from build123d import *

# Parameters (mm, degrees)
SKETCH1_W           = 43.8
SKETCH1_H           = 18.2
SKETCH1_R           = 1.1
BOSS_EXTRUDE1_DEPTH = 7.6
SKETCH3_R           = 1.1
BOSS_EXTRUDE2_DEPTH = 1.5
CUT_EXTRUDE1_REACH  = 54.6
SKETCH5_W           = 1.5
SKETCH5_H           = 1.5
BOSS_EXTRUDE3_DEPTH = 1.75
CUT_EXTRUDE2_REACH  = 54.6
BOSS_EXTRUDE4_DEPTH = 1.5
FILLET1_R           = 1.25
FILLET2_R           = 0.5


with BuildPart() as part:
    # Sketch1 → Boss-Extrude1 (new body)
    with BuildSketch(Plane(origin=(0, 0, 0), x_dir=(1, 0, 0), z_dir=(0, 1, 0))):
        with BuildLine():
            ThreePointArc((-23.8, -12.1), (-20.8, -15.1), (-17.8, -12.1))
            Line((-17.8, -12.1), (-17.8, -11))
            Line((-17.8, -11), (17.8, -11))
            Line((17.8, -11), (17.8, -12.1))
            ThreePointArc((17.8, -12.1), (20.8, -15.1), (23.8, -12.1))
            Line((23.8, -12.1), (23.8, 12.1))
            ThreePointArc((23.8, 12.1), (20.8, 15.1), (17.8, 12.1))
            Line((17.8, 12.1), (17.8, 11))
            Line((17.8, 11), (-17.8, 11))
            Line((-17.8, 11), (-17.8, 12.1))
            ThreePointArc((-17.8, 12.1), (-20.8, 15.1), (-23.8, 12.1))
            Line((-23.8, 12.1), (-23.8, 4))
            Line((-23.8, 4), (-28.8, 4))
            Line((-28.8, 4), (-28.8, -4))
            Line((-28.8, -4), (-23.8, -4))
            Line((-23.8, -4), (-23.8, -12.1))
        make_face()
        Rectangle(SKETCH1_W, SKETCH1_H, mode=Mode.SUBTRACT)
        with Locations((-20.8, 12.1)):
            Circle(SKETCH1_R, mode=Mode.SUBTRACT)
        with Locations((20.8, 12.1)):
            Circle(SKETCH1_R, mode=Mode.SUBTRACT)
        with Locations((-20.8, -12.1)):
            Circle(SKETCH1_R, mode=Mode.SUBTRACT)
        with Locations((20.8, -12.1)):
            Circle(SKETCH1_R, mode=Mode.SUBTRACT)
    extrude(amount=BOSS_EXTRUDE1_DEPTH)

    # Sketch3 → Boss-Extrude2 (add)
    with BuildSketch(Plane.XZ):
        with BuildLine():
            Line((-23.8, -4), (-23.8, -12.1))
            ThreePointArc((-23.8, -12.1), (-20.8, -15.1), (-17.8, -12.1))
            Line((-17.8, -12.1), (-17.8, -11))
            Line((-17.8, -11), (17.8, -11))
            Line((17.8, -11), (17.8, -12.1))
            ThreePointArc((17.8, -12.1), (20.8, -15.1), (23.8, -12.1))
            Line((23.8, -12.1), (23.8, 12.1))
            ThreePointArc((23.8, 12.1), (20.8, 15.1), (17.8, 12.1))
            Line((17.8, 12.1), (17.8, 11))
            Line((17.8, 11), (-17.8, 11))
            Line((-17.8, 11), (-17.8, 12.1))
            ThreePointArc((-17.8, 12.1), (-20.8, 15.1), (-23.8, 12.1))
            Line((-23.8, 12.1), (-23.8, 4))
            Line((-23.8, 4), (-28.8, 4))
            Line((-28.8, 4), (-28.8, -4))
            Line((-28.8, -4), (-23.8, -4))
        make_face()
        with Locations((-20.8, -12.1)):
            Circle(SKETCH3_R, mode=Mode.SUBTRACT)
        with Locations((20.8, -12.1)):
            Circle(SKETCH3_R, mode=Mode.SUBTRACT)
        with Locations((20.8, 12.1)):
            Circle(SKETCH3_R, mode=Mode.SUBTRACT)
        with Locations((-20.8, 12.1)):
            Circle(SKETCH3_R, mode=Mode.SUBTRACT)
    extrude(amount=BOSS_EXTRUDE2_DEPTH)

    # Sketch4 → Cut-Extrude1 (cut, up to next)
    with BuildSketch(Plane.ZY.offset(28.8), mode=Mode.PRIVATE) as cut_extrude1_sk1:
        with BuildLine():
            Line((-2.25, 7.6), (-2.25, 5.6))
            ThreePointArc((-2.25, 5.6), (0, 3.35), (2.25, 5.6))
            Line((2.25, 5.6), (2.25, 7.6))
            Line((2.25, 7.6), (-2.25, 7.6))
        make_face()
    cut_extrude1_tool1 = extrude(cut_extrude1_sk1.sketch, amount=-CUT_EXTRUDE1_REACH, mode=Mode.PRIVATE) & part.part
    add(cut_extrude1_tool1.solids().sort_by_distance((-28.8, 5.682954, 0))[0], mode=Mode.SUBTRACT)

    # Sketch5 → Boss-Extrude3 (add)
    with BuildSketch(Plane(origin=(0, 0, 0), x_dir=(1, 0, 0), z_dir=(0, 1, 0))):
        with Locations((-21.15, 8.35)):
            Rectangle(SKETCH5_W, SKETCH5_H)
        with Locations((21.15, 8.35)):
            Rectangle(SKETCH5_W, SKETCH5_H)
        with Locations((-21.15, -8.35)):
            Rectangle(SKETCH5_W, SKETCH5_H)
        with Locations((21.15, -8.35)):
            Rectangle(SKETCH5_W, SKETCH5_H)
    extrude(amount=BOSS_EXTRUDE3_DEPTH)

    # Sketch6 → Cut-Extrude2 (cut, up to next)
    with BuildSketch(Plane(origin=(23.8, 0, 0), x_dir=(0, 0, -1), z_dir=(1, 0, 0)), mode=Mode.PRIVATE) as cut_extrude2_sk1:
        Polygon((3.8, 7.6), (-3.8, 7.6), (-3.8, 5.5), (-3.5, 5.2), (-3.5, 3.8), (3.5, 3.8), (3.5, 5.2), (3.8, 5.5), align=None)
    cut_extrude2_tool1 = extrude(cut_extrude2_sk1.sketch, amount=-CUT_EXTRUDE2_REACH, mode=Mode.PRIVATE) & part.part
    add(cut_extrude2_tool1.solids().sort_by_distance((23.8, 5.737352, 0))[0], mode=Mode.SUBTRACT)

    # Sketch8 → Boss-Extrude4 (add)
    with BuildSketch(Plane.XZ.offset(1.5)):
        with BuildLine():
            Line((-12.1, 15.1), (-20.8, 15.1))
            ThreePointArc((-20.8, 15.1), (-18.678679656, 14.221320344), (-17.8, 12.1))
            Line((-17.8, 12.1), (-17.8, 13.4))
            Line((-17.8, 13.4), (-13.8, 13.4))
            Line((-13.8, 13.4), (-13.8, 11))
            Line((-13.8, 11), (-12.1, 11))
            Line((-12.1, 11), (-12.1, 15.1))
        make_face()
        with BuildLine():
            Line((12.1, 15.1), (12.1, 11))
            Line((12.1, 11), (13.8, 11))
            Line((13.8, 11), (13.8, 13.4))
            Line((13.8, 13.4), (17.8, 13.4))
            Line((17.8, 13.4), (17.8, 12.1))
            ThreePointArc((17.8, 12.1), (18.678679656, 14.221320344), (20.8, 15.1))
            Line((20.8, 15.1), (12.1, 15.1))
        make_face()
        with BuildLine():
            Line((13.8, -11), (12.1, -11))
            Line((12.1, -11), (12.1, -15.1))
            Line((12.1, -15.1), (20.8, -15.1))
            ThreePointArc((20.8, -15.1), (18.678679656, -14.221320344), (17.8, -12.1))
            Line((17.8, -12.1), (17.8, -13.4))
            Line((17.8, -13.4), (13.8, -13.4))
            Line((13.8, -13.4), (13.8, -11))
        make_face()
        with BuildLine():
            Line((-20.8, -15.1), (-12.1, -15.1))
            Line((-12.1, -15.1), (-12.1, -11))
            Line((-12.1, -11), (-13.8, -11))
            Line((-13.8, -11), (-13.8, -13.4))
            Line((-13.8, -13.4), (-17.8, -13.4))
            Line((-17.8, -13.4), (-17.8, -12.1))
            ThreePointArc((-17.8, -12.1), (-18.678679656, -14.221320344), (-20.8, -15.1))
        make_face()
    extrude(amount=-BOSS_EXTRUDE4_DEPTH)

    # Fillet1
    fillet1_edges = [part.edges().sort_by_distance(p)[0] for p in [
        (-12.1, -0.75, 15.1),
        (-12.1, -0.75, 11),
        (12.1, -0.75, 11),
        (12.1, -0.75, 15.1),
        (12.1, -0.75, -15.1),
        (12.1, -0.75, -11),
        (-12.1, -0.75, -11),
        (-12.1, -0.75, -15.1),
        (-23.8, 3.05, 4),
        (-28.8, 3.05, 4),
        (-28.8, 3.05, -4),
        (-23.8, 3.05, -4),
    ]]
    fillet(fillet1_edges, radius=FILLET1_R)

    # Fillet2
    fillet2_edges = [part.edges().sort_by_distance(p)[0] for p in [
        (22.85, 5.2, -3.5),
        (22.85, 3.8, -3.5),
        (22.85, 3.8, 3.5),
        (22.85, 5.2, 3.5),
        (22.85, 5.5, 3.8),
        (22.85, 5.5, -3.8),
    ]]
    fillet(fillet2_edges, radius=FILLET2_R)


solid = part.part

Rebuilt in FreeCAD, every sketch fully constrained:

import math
import FreeCAD as App
import Part
import Sketcher
from FreeCAD import Vector


def edges_at(feature, points):
    """Names of the edges that pass closest to the given points."""
    edges = feature.Shape.Edges
    near = lambda p: min(range(len(edges)), key=lambda i: edges[i].distToShape(Part.Vertex(*p))[0])
    return sorted({f"Edge{near(p) + 1}" for p in points})


def add_polygon(sketch, points):
    """Adds a closed chain of lines whose ends are joined by coincident constraints."""
    first, n = sketch.GeometryCount, len(points)
    for a, b in zip(points, points[1:] + points[:1]):
        sketch.addGeometry(Part.LineSegment(App.Vector(*a, 0), App.Vector(*b, 0)), False)
    for i in range(n):
        sketch.addConstraint(Sketcher.Constraint("Coincident", first + i, 2, first + (i + 1) % n, 1))

doc = App.newDocument("Part")
body = doc.addObject("PartDesign::Body", "Body")

# Sketch on XZ plane
sketch1 = doc.addObject("Sketcher::SketchObject", "Sketch")
body.addObject(sketch1)
sketch1.AttachmentSupport = (doc.XZ_Plane, [""])
sketch1.MapMode = "FlatFace"
sketch1.addGeometry(Part.ArcOfCircle(Part.Circle(Vector(-20.8, 12.1, 0), Vector(0, 0, 1), 3), math.radians(0), math.radians(180)), False)  # 0
sketch1.addGeometry(Part.LineSegment(Vector(-17.8, 12.1, 0), Vector(-17.8, 11, 0)), False)  # 1
sketch1.addGeometry(Part.LineSegment(Vector(-17.8, 11, 0), Vector(17.8, 11, 0)), False)  # 2
sketch1.addGeometry(Part.LineSegment(Vector(17.8, 11, 0), Vector(17.8, 12.1, 0)), False)  # 3
sketch1.addGeometry(Part.ArcOfCircle(Part.Circle(Vector(20.8, 12.1, 0), Vector(0, 0, 1), 3), math.radians(0), math.radians(180)), False)  # 4
sketch1.addGeometry(Part.LineSegment(Vector(23.8, 12.1, 0), Vector(23.8, -12.1, 0)), False)  # 5
sketch1.addGeometry(Part.ArcOfCircle(Part.Circle(Vector(20.8, -12.1, 0), Vector(0, 0, 1), 3), math.radians(180), math.radians(360)), False)  # 6
sketch1.addGeometry(Part.LineSegment(Vector(17.8, -12.1, 0), Vector(17.8, -11, 0)), False)  # 7
sketch1.addGeometry(Part.LineSegment(Vector(17.8, -11, 0), Vector(-17.8, -11, 0)), False)  # 8
sketch1.addGeometry(Part.LineSegment(Vector(-17.8, -11, 0), Vector(-17.8, -12.1, 0)), False)  # 9
sketch1.addGeometry(Part.ArcOfCircle(Part.Circle(Vector(-20.8, -12.1, 0), Vector(0, 0, 1), 3), math.radians(180), math.radians(360)), False)  # 10
sketch1.addGeometry(Part.LineSegment(Vector(-23.8, -12.1, 0), Vector(-23.8, -4, 0)), False)  # 11
sketch1.addGeometry(Part.LineSegment(Vector(-23.8, -4, 0), Vector(-28.8, -4, 0)), False)  # 12
sketch1.addGeometry(Part.LineSegment(Vector(-28.8, -4, 0), Vector(-28.8, 4, 0)), False)  # 13
sketch1.addGeometry(Part.LineSegment(Vector(-28.8, 4, 0), Vector(-23.8, 4, 0)), False)  # 14
sketch1.addGeometry(Part.LineSegment(Vector(-23.8, 4, 0), Vector(-23.8, 12.1, 0)), False)  # 15
sketch1.addGeometry(Part.Circle(Vector(-20.8, 12.1, 0), Vector(0, 0, 1), 1.1), False)  # 16
sketch1.addGeometry(Part.Circle(Vector(20.8, 12.1, 0), Vector(0, 0, 1), 1.1), False)  # 17
add_polygon(sketch1, [(21.9, 9.1), (-21.9, 9.1), (-21.9, -9.1), (21.9, -9.1)])  # lines 18-21
sketch1.addGeometry(Part.Circle(Vector(-20.8, -12.1, 0), Vector(0, 0, 1), 1.1), False)  # 22
sketch1.addGeometry(Part.Circle(Vector(20.8, -12.1, 0), Vector(0, 0, 1), 1.1), False)  # 23
sketch1.addConstraint([
    Sketcher.Constraint("Tangent", 0, 1, 1, 1),
    Sketcher.Constraint("Coincident", 1, 2, 2, 1),
    Sketcher.Constraint("Coincident", 2, 2, 3, 1),
    Sketcher.Constraint("Tangent", 3, 2, 4, 2),
    Sketcher.Constraint("Tangent", 4, 1, 5, 1),
    Sketcher.Constraint("Tangent", 5, 2, 6, 2),
    Sketcher.Constraint("Tangent", 6, 1, 7, 1),
    Sketcher.Constraint("Coincident", 7, 2, 8, 1),
    Sketcher.Constraint("Coincident", 8, 2, 9, 1),
    Sketcher.Constraint("Tangent", 9, 2, 10, 2),
    Sketcher.Constraint("Tangent", 10, 1, 11, 1),
    Sketcher.Constraint("Coincident", 11, 2, 12, 1),
    Sketcher.Constraint("Coincident", 12, 2, 13, 1),
    Sketcher.Constraint("Coincident", 13, 2, 14, 1),
    Sketcher.Constraint("Coincident", 14, 2, 15, 1),
    Sketcher.Constraint("Tangent", 15, 2, 0, 2),
    Sketcher.Constraint("Vertical", 1),
    Sketcher.Constraint("Horizontal", 2),
    Sketcher.Constraint("Vertical", 3),
    Sketcher.Constraint("Vertical", 5),
    Sketcher.Constraint("Vertical", 7),
    Sketcher.Constraint("Horizontal", 8),
    Sketcher.Constraint("Vertical", 9),
    Sketcher.Constraint("Vertical", 11),
    Sketcher.Constraint("Horizontal", 12),
    Sketcher.Constraint("Vertical", 13),
    Sketcher.Constraint("Horizontal", 14),
    Sketcher.Constraint("Vertical", 15),
    Sketcher.Constraint("Horizontal", 18),
    Sketcher.Constraint("Vertical", 19),
    Sketcher.Constraint("Horizontal", 20),
    Sketcher.Constraint("Vertical", 21),
    Sketcher.Constraint("Coincident", 16, 3, 0, 3),
    Sketcher.Constraint("Coincident", 17, 3, 4, 3),
    Sketcher.Constraint("Coincident", 22, 3, 10, 3),
    Sketcher.Constraint("Coincident", 23, 3, 6, 3),
    Sketcher.Constraint("Equal", 0, 4),
    Sketcher.Constraint("Equal", 4, 6),
    Sketcher.Constraint("Equal", 6, 10),
    Sketcher.Constraint("Equal", 16, 17),
    Sketcher.Constraint("Equal", 17, 22),
    Sketcher.Constraint("Equal", 22, 23),
    Sketcher.Constraint("Symmetric", 0, 3, 6, 3, -1, 1),
    Sketcher.Constraint("Symmetric", 4, 3, 10, 3, -1, 1),
    Sketcher.Constraint("Symmetric", 18, 2, 20, 2, -1, 1),
    Sketcher.Constraint("Horizontal", 0, 3, 4, 3),
    Sketcher.Constraint("Equal", 3, 7),
    Sketcher.Constraint("Equal", 11, 15),
    Sketcher.Constraint("Radius", 0, 3.0),
    Sketcher.Constraint("Diameter", 16, 2.2),
    Sketcher.Constraint("DistanceX", 12, 2, 12, 1, 5.0),
    Sketcher.Constraint("DistanceY", 13, 1, 13, 2, 8.0),
    Sketcher.Constraint("DistanceX", 2, 1, 2, 2, 35.6),
    Sketcher.Constraint("DistanceX", 18, 2, 18, 1, 43.8),
    Sketcher.Constraint("DistanceY", 1, 2, 1, 1, 1.1),
    Sketcher.Constraint("DistanceY", 5, 2, 5, 1, 24.2),
    Sketcher.Constraint("DistanceY", 19, 2, 19, 1, 18.2),
])
pad1 = doc.addObject("PartDesign::Pad", "Pad")
body.addObject(pad1)
pad1.Profile = sketch1
pad1.Length = 7.6
pad1.Reversed = True

# Sketch on XZ plane
sketch2 = doc.addObject("Sketcher::SketchObject", "Sketch001")
body.addObject(sketch2)
sketch2.AttachmentSupport = (doc.XZ_Plane, [""])
sketch2.MapMode = "FlatFace"
sketch2.addGeometry([
    Part.LineSegment(Vector(-23.8, -4, 0), Vector(-23.8, -12.1, 0)),  # 0
    Part.ArcOfCircle(Part.Circle(Vector(-20.8, -12.1, 0), Vector(0, 0, 1), 3), math.radians(180), math.radians(360)),  # 1
    Part.LineSegment(Vector(-17.8, -12.1, 0), Vector(-17.8, -11, 0)),  # 2
    Part.LineSegment(Vector(-17.8, -11, 0), Vector(17.8, -11, 0)),  # 3
    Part.LineSegment(Vector(17.8, -11, 0), Vector(17.8, -12.1, 0)),  # 4
    Part.ArcOfCircle(Part.Circle(Vector(20.8, -12.1, 0), Vector(0, 0, 1), 3), math.radians(180), math.radians(360)),  # 5
    Part.LineSegment(Vector(23.8, -12.1, 0), Vector(23.8, 12.1, 0)),  # 6
    Part.ArcOfCircle(Part.Circle(Vector(20.8, 12.1, 0), Vector(0, 0, 1), 3), math.radians(0), math.radians(180)),  # 7
    Part.LineSegment(Vector(17.8, 12.1, 0), Vector(17.8, 11, 0)),  # 8
    Part.LineSegment(Vector(17.8, 11, 0), Vector(-17.8, 11, 0)),  # 9
    Part.LineSegment(Vector(-17.8, 11, 0), Vector(-17.8, 12.1, 0)),  # 10
    Part.ArcOfCircle(Part.Circle(Vector(-20.8, 12.1, 0), Vector(0, 0, 1), 3), math.radians(0), math.radians(180)),  # 11
    Part.LineSegment(Vector(-23.8, 12.1, 0), Vector(-23.8, 4, 0)),  # 12
    Part.LineSegment(Vector(-23.8, 4, 0), Vector(-28.8, 4, 0)),  # 13
    Part.LineSegment(Vector(-28.8, 4, 0), Vector(-28.8, -4, 0)),  # 14
    Part.LineSegment(Vector(-28.8, -4, 0), Vector(-23.8, -4, 0)),  # 15
    Part.Circle(Vector(-20.8, -12.1, 0), Vector(0, 0, 1), 1.1),  # 16
    Part.Circle(Vector(20.8, -12.1, 0), Vector(0, 0, 1), 1.1),  # 17
    Part.Circle(Vector(-20.8, 12.1, 0), Vector(0, 0, 1), 1.1),  # 18
    Part.Circle(Vector(20.8, 12.1, 0), Vector(0, 0, 1), 1.1),  # 19
], False)
sketch2.addConstraint([
    Sketcher.Constraint("Tangent", 0, 2, 1, 1),
    Sketcher.Constraint("Tangent", 1, 2, 2, 1),
    Sketcher.Constraint("Coincident", 2, 2, 3, 1),
    Sketcher.Constraint("Coincident", 3, 2, 4, 1),
    Sketcher.Constraint("Tangent", 4, 2, 5, 1),
    Sketcher.Constraint("Tangent", 5, 2, 6, 1),
    Sketcher.Constraint("Tangent", 6, 2, 7, 1),
    Sketcher.Constraint("Tangent", 7, 2, 8, 1),
    Sketcher.Constraint("Coincident", 8, 2, 9, 1),
    Sketcher.Constraint("Coincident", 9, 2, 10, 1),
    Sketcher.Constraint("Tangent", 10, 2, 11, 1),
    Sketcher.Constraint("Tangent", 11, 2, 12, 1),
    Sketcher.Constraint("Coincident", 12, 2, 13, 1),
    Sketcher.Constraint("Coincident", 13, 2, 14, 1),
    Sketcher.Constraint("Coincident", 14, 2, 15, 1),
    Sketcher.Constraint("Coincident", 15, 2, 0, 1),
    Sketcher.Constraint("Vertical", 0),
    Sketcher.Constraint("Vertical", 2),
    Sketcher.Constraint("Horizontal", 3),
    Sketcher.Constraint("Vertical", 4),
    Sketcher.Constraint("Vertical", 6),
    Sketcher.Constraint("Vertical", 8),
    Sketcher.Constraint("Horizontal", 9),
    Sketcher.Constraint("Vertical", 10),
    Sketcher.Constraint("Vertical", 12),
    Sketcher.Constraint("Horizontal", 13),
    Sketcher.Constraint("Vertical", 14),
    Sketcher.Constraint("Horizontal", 15),
    Sketcher.Constraint("Coincident", 16, 3, 1, 3),
    Sketcher.Constraint("Coincident", 17, 3, 5, 3),
    Sketcher.Constraint("Coincident", 18, 3, 11, 3),
    Sketcher.Constraint("Coincident", 19, 3, 7, 3),
    Sketcher.Constraint("Equal", 1, 5),
    Sketcher.Constraint("Equal", 5, 7),
    Sketcher.Constraint("Equal", 7, 11),
    Sketcher.Constraint("Equal", 16, 17),
    Sketcher.Constraint("Equal", 17, 18),
    Sketcher.Constraint("Equal", 18, 19),
    Sketcher.Constraint("Symmetric", 1, 3, 7, 3, -1, 1),
    Sketcher.Constraint("Symmetric", 5, 3, 11, 3, -1, 1),
    Sketcher.Constraint("Horizontal", 1, 3, 5, 3),
    Sketcher.Constraint("Equal", 4, 8),
    Sketcher.Constraint("Equal", 0, 12),
    Sketcher.Constraint("Radius", 1, 3.0),
    Sketcher.Constraint("Diameter", 16, 2.2),
    Sketcher.Constraint("DistanceX", 13, 2, 13, 1, 5.0),
    Sketcher.Constraint("DistanceY", 14, 2, 14, 1, 8.0),
    Sketcher.Constraint("DistanceX", 3, 1, 3, 2, 35.6),
    Sketcher.Constraint("DistanceY", 0, 2, 0, 1, 8.1),
    Sketcher.Constraint("DistanceY", 2, 1, 2, 2, 1.1),
])
pad2 = doc.addObject("PartDesign::Pad", "Pad001")
body.addObject(pad2)
pad2.Profile = sketch2
pad2.Length = 1.5

# Sketch on YZ plane
sketch3 = doc.addObject("Sketcher::SketchObject", "Sketch002")
body.addObject(sketch3)
sketch3.AttachmentSupport = (doc.YZ_Plane, [""])
sketch3.MapMode = "FlatFace"
sketch3.AttachmentOffset = App.Placement(Vector(0, 0, -28.8), App.Rotation())
sketch3.addGeometry([
    Part.LineSegment(Vector(7.6, -2.2, 0), Vector(5.6, -2.2, 0)),
    Part.ArcOfCircle(Part.Circle(Vector(5.6, 0, 0), Vector(0, 0, 1), 2.2), math.radians(90), math.radians(270)),
    Part.LineSegment(Vector(5.6, 2.2, 0), Vector(7.6, 2.2, 0)),
    Part.LineSegment(Vector(7.6, 2.2, 0), Vector(7.6, -2.2, 0)),
], False)
sketch3.addConstraint([
    Sketcher.Constraint("Tangent", 0, 2, 1, 2),
    Sketcher.Constraint("Tangent", 1, 1, 2, 1),
    Sketcher.Constraint("Coincident", 2, 2, 3, 1),
    Sketcher.Constraint("Coincident", 3, 2, 0, 1),
    Sketcher.Constraint("Horizontal", 0),
    Sketcher.Constraint("Horizontal", 2),
    Sketcher.Constraint("Vertical", 3),
    Sketcher.Constraint("PointOnObject", 1, 3, -1),
    Sketcher.Constraint("DistanceX", 0, 2, 0, 1, 2.0),
    Sketcher.Constraint("Radius", 1, 2.25),
    Sketcher.Constraint("DistanceX", -1, 1, 1, 3, 5.6),
])
pocket1 = doc.addObject("PartDesign::Pocket", "Pocket")
body.addObject(pocket1)
pocket1.Profile = sketch3
pocket1.Type = "UpToFirst"
pocket1.Reversed = True

# Sketch on XZ plane
sketch4 = doc.addObject("Sketcher::SketchObject", "Sketch003")
body.addObject(sketch4)
sketch4.AttachmentSupport = (doc.XZ_Plane, [""])
sketch4.MapMode = "FlatFace"
add_polygon(sketch4, [(-21.9, -9.1), (-21.9, -7.6), (-20.4, -7.6), (-20.4, -9.1)])  # lines 0-3
add_polygon(sketch4, [(20.4, -9.1), (20.4, -7.6), (21.9, -7.6), (21.9, -9.1)])  # lines 4-7
add_polygon(sketch4, [(-21.9, 7.6), (-21.9, 9.1), (-20.4, 9.1), (-20.4, 7.6)])  # lines 8-11
add_polygon(sketch4, [(20.4, 7.6), (20.4, 9.1), (21.9, 9.1), (21.9, 7.6)])  # lines 12-15
sketch4.addConstraint([
    Sketcher.Constraint("Vertical", 0),
    Sketcher.Constraint("Horizontal", 1),
    Sketcher.Constraint("Vertical", 2),
    Sketcher.Constraint("Horizontal", 3),
    Sketcher.Constraint("Vertical", 4),
    Sketcher.Constraint("Horizontal", 5),
    Sketcher.Constraint("Vertical", 6),
    Sketcher.Constraint("Horizontal", 7),
    Sketcher.Constraint("Vertical", 8),
    Sketcher.Constraint("Horizontal", 9),
    Sketcher.Constraint("Vertical", 10),
    Sketcher.Constraint("Horizontal", 11),
    Sketcher.Constraint("Vertical", 12),
    Sketcher.Constraint("Horizontal", 13),
    Sketcher.Constraint("Vertical", 14),
    Sketcher.Constraint("Horizontal", 15),
    Sketcher.Constraint("Symmetric", 6, 2, 8, 2, -1, 1),
    Sketcher.Constraint("Symmetric", 4, 2, 10, 2, -1, 1),
    Sketcher.Constraint("Symmetric", 2, 2, 12, 2, -1, 1),
    Sketcher.Constraint("Symmetric", 0, 2, 14, 2, -1, 1),
    Sketcher.Constraint("Symmetric", 1, 2, 4, 2, -2),
    Sketcher.Constraint("Symmetric", 3, 2, 6, 2, -2),
    Sketcher.Constraint("Equal", 15, 0),
    Sketcher.Constraint("DistanceX", 1, 1, 1, 2, 1.5),
    Sketcher.Constraint("DistanceX", 0, 2, -1, 1, 21.9),
    Sketcher.Constraint("DistanceY", 0, 2, -1, 1, 7.6),
])
pad3 = doc.addObject("PartDesign::Pad", "Pad002")
body.addObject(pad3)
pad3.Profile = sketch4
pad3.Length = 1.75
pad3.Reversed = True

# Sketch on YZ plane
sketch5 = doc.addObject("Sketcher::SketchObject", "Sketch004")
body.addObject(sketch5)
sketch5.AttachmentSupport = (doc.YZ_Plane, [""])
sketch5.MapMode = "FlatFace"
sketch5.AttachmentOffset = App.Placement(Vector(0, 0, 23.8), App.Rotation())
add_polygon(sketch5, [(7.6, -3.8), (7.6, 3.8), (5.5, 3.8), (5.2, 3.5), (3.8, 3.5), (3.8, -3.5), (5.2, -3.5), (5.5, -3.8)])  # lines 0-7
sketch5.addConstraint([
    Sketcher.Constraint("Vertical", 0),
    Sketcher.Constraint("Horizontal", 1),
    Sketcher.Constraint("Horizontal", 3),
    Sketcher.Constraint("Vertical", 4),
    Sketcher.Constraint("Horizontal", 5),
    Sketcher.Constraint("Horizontal", 7),
    Sketcher.Constraint("Symmetric", 2, 2, 5, 2, -1),
    Sketcher.Constraint("Symmetric", 1, 2, 6, 2, -1),
    Sketcher.Constraint("Perpendicular", 2, 6),
    Sketcher.Constraint("DistanceY", 4, 2, 4, 1, 7.0),
    Sketcher.Constraint("DistanceX", 1, 2, 1, 1, 2.1),
    Sketcher.Constraint("DistanceX", 3, 2, 3, 1, 1.4),
    Sketcher.Constraint("DistanceY", 0, 1, 0, 2, 7.6),
    Sketcher.Constraint("DistanceX", -1, 1, 0, 2, 7.6),
])
pocket2 = doc.addObject("PartDesign::Pocket", "Pocket001")
body.addObject(pocket2)
pocket2.Profile = sketch5
pocket2.Type = "UpToFirst"

# Sketch on XZ plane
sketch6 = doc.addObject("Sketcher::SketchObject", "Sketch005")
body.addObject(sketch6)
sketch6.AttachmentSupport = (doc.XZ_Plane, [""])
sketch6.MapMode = "FlatFace"
sketch6.AttachmentOffset = App.Placement(Vector(0, 0, 1.5), App.Rotation())
sketch6.addGeometry([
    Part.LineSegment(Vector(-12.1, 15.1, 0), Vector(-20.8, 15.1, 0)),  # 0
    Part.ArcOfCircle(Part.Circle(Vector(-20.8, 12.1, 0), Vector(0, 0, 1), 3), math.radians(0), math.radians(90)),  # 1
    Part.LineSegment(Vector(-17.8, 12.1, 0), Vector(-17.8, 13.4, 0)),  # 2
    Part.LineSegment(Vector(-17.8, 13.4, 0), Vector(-13.8, 13.4, 0)),  # 3
    Part.LineSegment(Vector(-13.8, 13.4, 0), Vector(-13.8, 11, 0)),  # 4
    Part.LineSegment(Vector(-13.8, 11, 0), Vector(-12.1, 11, 0)),  # 5
    Part.LineSegment(Vector(-12.1, 11, 0), Vector(-12.1, 15.1, 0)),  # 6
    Part.LineSegment(Vector(12.1, 15.1, 0), Vector(12.1, 11, 0)),  # 7
    Part.LineSegment(Vector(12.1, 11, 0), Vector(13.8, 11, 0)),  # 8
    Part.LineSegment(Vector(13.8, 11, 0), Vector(13.8, 13.4, 0)),  # 9
    Part.LineSegment(Vector(13.8, 13.4, 0), Vector(17.8, 13.4, 0)),  # 10
    Part.LineSegment(Vector(17.8, 13.4, 0), Vector(17.8, 12.1, 0)),  # 11
    Part.ArcOfCircle(Part.Circle(Vector(20.8, 12.1, 0), Vector(0, 0, 1), 3), math.radians(90), math.radians(180)),  # 12
    Part.LineSegment(Vector(20.8, 15.1, 0), Vector(12.1, 15.1, 0)),  # 13
    Part.LineSegment(Vector(13.8, -11, 0), Vector(12.1, -11, 0)),  # 14
    Part.LineSegment(Vector(12.1, -11, 0), Vector(12.1, -15.1, 0)),  # 15
    Part.LineSegment(Vector(12.1, -15.1, 0), Vector(20.8, -15.1, 0)),  # 16
    Part.ArcOfCircle(Part.Circle(Vector(20.8, -12.1, 0), Vector(0, 0, 1), 3), math.radians(180), math.radians(270)),  # 17
    Part.LineSegment(Vector(17.8, -12.1, 0), Vector(17.8, -13.4, 0)),  # 18
    Part.LineSegment(Vector(17.8, -13.4, 0), Vector(13.8, -13.4, 0)),  # 19
    Part.LineSegment(Vector(13.8, -13.4, 0), Vector(13.8, -11, 0)),  # 20
    Part.LineSegment(Vector(-20.8, -15.1, 0), Vector(-12.1, -15.1, 0)),  # 21
    Part.LineSegment(Vector(-12.1, -15.1, 0), Vector(-12.1, -11, 0)),  # 22
    Part.LineSegment(Vector(-12.1, -11, 0), Vector(-13.8, -11, 0)),  # 23
    Part.LineSegment(Vector(-13.8, -11, 0), Vector(-13.8, -13.4, 0)),  # 24
    Part.LineSegment(Vector(-13.8, -13.4, 0), Vector(-17.8, -13.4, 0)),  # 25
    Part.LineSegment(Vector(-17.8, -13.4, 0), Vector(-17.8, -12.1, 0)),  # 26
    Part.ArcOfCircle(Part.Circle(Vector(-20.8, -12.1, 0), Vector(0, 0, 1), 3), math.radians(-90), math.radians(0)),  # 27
], False)
sketch6.addConstraint([
    Sketcher.Constraint("Tangent", 0, 2, 1, 2),
    Sketcher.Constraint("Tangent", 1, 1, 2, 1),
    Sketcher.Constraint("Coincident", 2, 2, 3, 1),
    Sketcher.Constraint("Coincident", 3, 2, 4, 1),
    Sketcher.Constraint("Coincident", 4, 2, 5, 1),
    Sketcher.Constraint("Coincident", 5, 2, 6, 1),
    Sketcher.Constraint("Coincident", 6, 2, 0, 1),
    Sketcher.Constraint("Coincident", 7, 2, 8, 1),
    Sketcher.Constraint("Coincident", 8, 2, 9, 1),
    Sketcher.Constraint("Coincident", 9, 2, 10, 1),
    Sketcher.Constraint("Coincident", 10, 2, 11, 1),
    Sketcher.Constraint("Tangent", 11, 2, 12, 2),
    Sketcher.Constraint("Tangent", 12, 1, 13, 1),
    Sketcher.Constraint("Coincident", 13, 2, 7, 1),
    Sketcher.Constraint("Coincident", 14, 2, 15, 1),
    Sketcher.Constraint("Coincident", 15, 2, 16, 1),
    Sketcher.Constraint("Tangent", 16, 2, 17, 2),
    Sketcher.Constraint("Tangent", 17, 1, 18, 1),
    Sketcher.Constraint("Coincident", 18, 2, 19, 1),
    Sketcher.Constraint("Coincident", 19, 2, 20, 1),
    Sketcher.Constraint("Coincident", 20, 2, 14, 1),
    Sketcher.Constraint("Coincident", 21, 2, 22, 1),
    Sketcher.Constraint("Coincident", 22, 2, 23, 1),
    Sketcher.Constraint("Coincident", 23, 2, 24, 1),
    Sketcher.Constraint("Coincident", 24, 2, 25, 1),
    Sketcher.Constraint("Coincident", 25, 2, 26, 1),
    Sketcher.Constraint("Tangent", 26, 2, 27, 2),
    Sketcher.Constraint("Tangent", 27, 1, 21, 1),
    Sketcher.Constraint("Horizontal", 0),
    Sketcher.Constraint("Vertical", 2),
    Sketcher.Constraint("Horizontal", 3),
    Sketcher.Constraint("Vertical", 4),
    Sketcher.Constraint("Horizontal", 5),
    Sketcher.Constraint("Vertical", 6),
    Sketcher.Constraint("Vertical", 7),
    Sketcher.Constraint("Horizontal", 8),
    Sketcher.Constraint("Vertical", 9),
    Sketcher.Constraint("Horizontal", 10),
    Sketcher.Constraint("Vertical", 11),
    Sketcher.Constraint("Horizontal", 13),
    Sketcher.Constraint("Horizontal", 14),
    Sketcher.Constraint("Vertical", 15),
    Sketcher.Constraint("Horizontal", 16),
    Sketcher.Constraint("Vertical", 18),
    Sketcher.Constraint("Horizontal", 19),
    Sketcher.Constraint("Vertical", 20),
    Sketcher.Constraint("Horizontal", 21),
    Sketcher.Constraint("Vertical", 22),
    Sketcher.Constraint("Horizontal", 23),
    Sketcher.Constraint("Vertical", 24),
    Sketcher.Constraint("Horizontal", 25),
    Sketcher.Constraint("Vertical", 26),
    Sketcher.Constraint("Equal", 1, 12),
    Sketcher.Constraint("Equal", 12, 17),
    Sketcher.Constraint("Equal", 17, 27),
    Sketcher.Constraint("Symmetric", 1, 3, 17, 3, -1, 1),
    Sketcher.Constraint("Symmetric", 12, 3, 27, 3, -1, 1),
    Sketcher.Constraint("Symmetric", 5, 2, 14, 2, -1, 1),
    Sketcher.Constraint("Symmetric", 3, 2, 19, 2, -1, 1),
    Sketcher.Constraint("Symmetric", 7, 2, 22, 2, -1, 1),
    Sketcher.Constraint("Symmetric", 9, 2, 24, 2, -1, 1),
    Sketcher.Constraint("Symmetric", 1, 3, 12, 3, -2),
    Sketcher.Constraint("Symmetric", 5, 2, 7, 2, -2),
    Sketcher.Constraint("Symmetric", 3, 2, 9, 2, -2),
    Sketcher.Constraint("Radius", 1, 3.0),
    Sketcher.Constraint("DistanceX", 3, 1, 3, 2, 4.0),
    Sketcher.Constraint("DistanceX", 0, 2, 0, 1, 8.7),
    Sketcher.Constraint("DistanceY", 2, 1, 2, 2, 1.3),
    Sketcher.Constraint("DistanceY", 4, 2, 4, 1, 2.4),
    Sketcher.Constraint("DistanceY", -1, 1, 4, 2, 11.0),
    Sketcher.Constraint("DistanceX", 1, 3, -1, 1, 20.8),
])
pad4 = doc.addObject("PartDesign::Pad", "Pad003")
body.addObject(pad4)
pad4.Profile = sketch6
pad4.Length = 1.5
pad4.Reversed = True
doc.recompute()

fillet = doc.addObject("PartDesign::Fillet", "Fillet")
body.addObject(fillet)
fillet.Base = (pad4, edges_at(pad4, [
    (-12.1, -0.75, 15.1),
    (-12.1, -0.75, 11),
    (12.1, -0.75, 11),
    (12.1, -0.75, 15.1),
    (12.1, -0.75, -15.1),
    (12.1, -0.75, -11),
    (-12.1, -0.75, -11),
    (-12.1, -0.75, -15.1),
    (-23.8, 3.05, 4),
    (-28.8, 3.05, 4),
    (-28.8, 3.05, -4),
    (-23.8, 3.05, -4),
]))
fillet.Radius = 1.25
doc.recompute()

fillet2 = doc.addObject("PartDesign::Fillet", "Fillet001")
body.addObject(fillet2)
fillet2.Base = (fillet, edges_at(fillet, [
    (22.85, 5.2, -3.5),
    (22.85, 3.8, -3.5),
    (22.85, 3.8, 3.5),
    (22.85, 5.2, 3.5),
    (22.85, 5.5, 3.8),
    (22.85, 5.5, -3.8),
]))
fillet2.Radius = 0.5

doc.recompute()
